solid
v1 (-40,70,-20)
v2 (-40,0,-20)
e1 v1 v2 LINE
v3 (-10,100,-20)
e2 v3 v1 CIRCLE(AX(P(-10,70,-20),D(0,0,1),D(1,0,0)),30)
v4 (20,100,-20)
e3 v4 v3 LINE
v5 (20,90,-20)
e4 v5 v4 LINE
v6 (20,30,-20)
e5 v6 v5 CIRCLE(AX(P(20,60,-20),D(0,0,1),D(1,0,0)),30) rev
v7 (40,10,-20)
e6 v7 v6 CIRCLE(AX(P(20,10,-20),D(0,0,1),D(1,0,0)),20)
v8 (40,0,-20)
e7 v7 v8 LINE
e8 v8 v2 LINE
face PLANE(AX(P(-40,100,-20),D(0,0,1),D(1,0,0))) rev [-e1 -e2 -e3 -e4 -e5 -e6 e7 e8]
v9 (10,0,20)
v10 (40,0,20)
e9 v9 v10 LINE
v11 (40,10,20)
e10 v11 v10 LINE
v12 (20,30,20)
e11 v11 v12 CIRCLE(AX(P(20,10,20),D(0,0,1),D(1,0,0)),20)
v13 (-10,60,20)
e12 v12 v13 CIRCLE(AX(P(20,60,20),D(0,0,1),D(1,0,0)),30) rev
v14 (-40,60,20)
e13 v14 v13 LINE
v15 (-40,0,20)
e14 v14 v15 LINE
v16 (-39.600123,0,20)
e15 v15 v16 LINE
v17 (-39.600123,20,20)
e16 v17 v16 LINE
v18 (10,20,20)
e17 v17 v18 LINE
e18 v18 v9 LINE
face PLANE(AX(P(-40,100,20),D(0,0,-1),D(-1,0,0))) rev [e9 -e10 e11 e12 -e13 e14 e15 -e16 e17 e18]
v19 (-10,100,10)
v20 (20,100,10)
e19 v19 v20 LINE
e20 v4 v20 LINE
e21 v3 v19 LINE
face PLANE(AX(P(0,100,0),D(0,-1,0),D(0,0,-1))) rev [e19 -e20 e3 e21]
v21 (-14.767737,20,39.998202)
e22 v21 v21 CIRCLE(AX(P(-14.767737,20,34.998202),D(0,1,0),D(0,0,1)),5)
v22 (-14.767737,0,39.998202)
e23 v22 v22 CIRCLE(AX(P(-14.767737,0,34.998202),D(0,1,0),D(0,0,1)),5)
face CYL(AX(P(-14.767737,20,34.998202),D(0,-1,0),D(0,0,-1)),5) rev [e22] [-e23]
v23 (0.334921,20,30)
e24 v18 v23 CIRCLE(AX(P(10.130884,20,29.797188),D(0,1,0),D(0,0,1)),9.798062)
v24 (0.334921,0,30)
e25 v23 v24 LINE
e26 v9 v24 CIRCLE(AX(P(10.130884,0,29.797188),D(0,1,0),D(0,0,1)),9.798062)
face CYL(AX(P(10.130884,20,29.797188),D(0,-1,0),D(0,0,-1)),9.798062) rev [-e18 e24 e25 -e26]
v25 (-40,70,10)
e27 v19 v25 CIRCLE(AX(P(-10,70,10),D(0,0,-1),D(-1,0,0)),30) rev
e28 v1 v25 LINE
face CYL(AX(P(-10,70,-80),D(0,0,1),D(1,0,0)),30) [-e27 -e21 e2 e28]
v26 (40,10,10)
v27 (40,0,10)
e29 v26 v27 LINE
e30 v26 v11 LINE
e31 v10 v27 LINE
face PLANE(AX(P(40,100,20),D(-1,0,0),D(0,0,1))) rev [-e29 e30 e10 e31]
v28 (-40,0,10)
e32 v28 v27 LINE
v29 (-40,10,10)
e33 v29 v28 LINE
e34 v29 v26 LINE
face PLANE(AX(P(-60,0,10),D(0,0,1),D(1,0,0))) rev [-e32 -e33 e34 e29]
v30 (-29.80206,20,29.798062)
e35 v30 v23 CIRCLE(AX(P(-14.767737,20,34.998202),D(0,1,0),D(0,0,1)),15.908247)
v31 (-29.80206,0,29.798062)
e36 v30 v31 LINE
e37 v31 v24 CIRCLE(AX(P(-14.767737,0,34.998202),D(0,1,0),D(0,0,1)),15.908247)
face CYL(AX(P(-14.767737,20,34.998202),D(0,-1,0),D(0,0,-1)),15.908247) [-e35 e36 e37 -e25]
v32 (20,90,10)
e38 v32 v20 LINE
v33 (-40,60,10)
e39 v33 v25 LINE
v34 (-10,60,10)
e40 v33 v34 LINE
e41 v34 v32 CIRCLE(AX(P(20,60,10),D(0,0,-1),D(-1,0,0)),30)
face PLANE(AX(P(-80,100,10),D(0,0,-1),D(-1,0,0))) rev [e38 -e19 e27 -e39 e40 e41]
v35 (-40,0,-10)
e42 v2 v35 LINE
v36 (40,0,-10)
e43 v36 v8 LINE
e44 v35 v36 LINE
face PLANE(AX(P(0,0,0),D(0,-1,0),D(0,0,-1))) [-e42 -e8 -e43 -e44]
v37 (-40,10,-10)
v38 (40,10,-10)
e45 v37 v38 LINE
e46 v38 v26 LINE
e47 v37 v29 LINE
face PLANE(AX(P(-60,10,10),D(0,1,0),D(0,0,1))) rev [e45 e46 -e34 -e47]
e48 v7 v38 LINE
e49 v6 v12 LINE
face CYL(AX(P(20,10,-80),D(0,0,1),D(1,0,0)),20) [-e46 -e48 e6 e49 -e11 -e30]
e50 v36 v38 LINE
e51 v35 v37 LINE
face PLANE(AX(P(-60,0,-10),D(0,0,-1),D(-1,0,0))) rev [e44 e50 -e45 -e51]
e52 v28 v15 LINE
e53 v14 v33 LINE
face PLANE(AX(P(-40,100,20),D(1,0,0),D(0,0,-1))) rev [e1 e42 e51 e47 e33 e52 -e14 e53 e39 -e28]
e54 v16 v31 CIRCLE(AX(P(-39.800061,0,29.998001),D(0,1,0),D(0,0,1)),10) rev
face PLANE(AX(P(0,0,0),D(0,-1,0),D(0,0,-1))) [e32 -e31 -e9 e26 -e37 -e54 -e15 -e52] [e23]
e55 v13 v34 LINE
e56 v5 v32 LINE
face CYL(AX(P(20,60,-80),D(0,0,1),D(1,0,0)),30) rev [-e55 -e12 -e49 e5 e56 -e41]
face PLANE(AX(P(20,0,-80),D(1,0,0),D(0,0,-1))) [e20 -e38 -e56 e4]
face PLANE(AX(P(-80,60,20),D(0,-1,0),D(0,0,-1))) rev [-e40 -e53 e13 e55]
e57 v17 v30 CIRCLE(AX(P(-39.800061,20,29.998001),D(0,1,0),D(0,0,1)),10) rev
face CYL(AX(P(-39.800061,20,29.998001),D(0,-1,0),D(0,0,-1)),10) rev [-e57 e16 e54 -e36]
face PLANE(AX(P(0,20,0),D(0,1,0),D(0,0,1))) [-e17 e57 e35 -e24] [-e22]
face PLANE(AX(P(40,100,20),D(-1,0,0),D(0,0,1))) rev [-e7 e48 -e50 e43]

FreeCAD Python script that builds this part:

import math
import FreeCAD as App
import Part
import Sketcher
Q = App.Units.Quantity

doc = App.newDocument("Part")
body = doc.addObject("PartDesign::Body", "Body")

sketch1 = doc.addObject("Sketcher::SketchObject", "Sketch")
body.addObject(sketch1)
sketch1.AttachmentSupport = (doc.XZ_Plane, [""])
sketch1.MapMode = "FlatFace"
sketch1.addGeometry([
    Part.LineSegment(App.Vector(-40, -20, 0), App.Vector(-40, 20, 0)),
    Part.LineSegment(App.Vector(-40, 20, 0), App.Vector(40, 20, 0)),
    Part.LineSegment(App.Vector(40, 20, 0), App.Vector(40, -20, 0)),
    Part.LineSegment(App.Vector(40, -20, 0), App.Vector(-40, -20, 0)),
], False)
sketch1.addConstraint([
    Sketcher.Constraint("Coincident", 0, 2, 1, 1),
    Sketcher.Constraint("Coincident", 1, 2, 2, 1),
    Sketcher.Constraint("Coincident", 2, 2, 3, 1),
    Sketcher.Constraint("Coincident", 3, 2, 0, 1),
    Sketcher.Constraint("Vertical", 0),
    Sketcher.Constraint("Horizontal", 1),
    Sketcher.Constraint("Vertical", 2),
    Sketcher.Constraint("Horizontal", 3),
    Sketcher.Constraint("Symmetric", 0, 2, 2, 2, -1, 1),
    Sketcher.Constraint("DistanceX", 1, 1, 1, 2, Q("80 mm")),
    Sketcher.Constraint("DistanceY", 0, 1, 0, 2, Q("40 mm")),
])
pad1 = doc.addObject("PartDesign::Pad", "Pad")
body.addObject(pad1)
pad1.Profile = sketch1
pad1.Length = 100
pad1.Reversed = True

sketch2 = doc.addObject("Sketcher::SketchObject", "Sketch001")
body.addObject(sketch2)
sketch2.AttachmentSupport = (doc.XY_Plane, [""])
sketch2.MapMode = "FlatFace"
sketch2.AttachmentOffset = App.Placement(App.Vector(0, 0, 20), App.Rotation())
sketch2.addGeometry([
    Part.ArcOfCircle(Part.Circle(App.Vector(20, 10, 0), App.Vector(0, 0, 1), 20), math.radians(0), math.radians(90)),
    Part.LineSegment(App.Vector(40, 10, 0), App.Vector(40, 100, 0)),
    Part.LineSegment(App.Vector(40, 100, 0), App.Vector(20, 100, 0)),
    Part.LineSegment(App.Vector(20, 100, 0), App.Vector(20, 90, 0)),
    Part.ArcOfCircle(Part.Circle(App.Vector(20, 60, 0), App.Vector(0, 0, 1), 30), math.radians(90), math.radians(270)),
    Part.LineSegment(App.Vector(-40, 100, 0), App.Vector(-40, 70, 0)),
    Part.ArcOfCircle(Part.Circle(App.Vector(-10, 70, 0), App.Vector(0, 0, 1), 30), math.radians(90), math.radians(180)),
    Part.LineSegment(App.Vector(-10, 100, 0), App.Vector(-40, 100, 0)),
], False)
sketch2.addConstraint([
    Sketcher.Constraint("Tangent", 0, 1, 1, 1),
    Sketcher.Constraint("Coincident", 1, 2, 2, 1),
    Sketcher.Constraint("Coincident", 2, 2, 3, 1),
    Sketcher.Constraint("Coincident", 3, 2, 4, 1),
    Sketcher.Constraint("Tangent", 4, 2, 0, 2),
    Sketcher.Constraint("Tangent", 5, 2, 6, 2),
    Sketcher.Constraint("Tangent", 6, 1, 7, 1),
    Sketcher.Constraint("Coincident", 7, 2, 5, 1),
    Sketcher.Constraint("Vertical", 1),
    Sketcher.Constraint("Horizontal", 2),
    Sketcher.Constraint("Vertical", 3),
    Sketcher.Constraint("Vertical", 5),
    Sketcher.Constraint("Horizontal", 7),
    Sketcher.Constraint("Equal", 4, 6),
    Sketcher.Constraint("Symmetric", 1, 2, 7, 2, -2),
    Sketcher.Constraint("Vertical", 0, 3, 4, 3),
    Sketcher.Constraint("Vertical", 4, 3, 2, 2),
    Sketcher.Constraint("Radius", 0, Q("20 mm")),
    Sketcher.Constraint("Radius", 4, Q("30 mm")),
    Sketcher.Constraint("DistanceY", 1, 1, 1, 2, Q("90 mm")),
    Sketcher.Constraint("DistanceX", -1, 1, 0, 3, Q("20 mm")),
    Sketcher.Constraint("DistanceY", -1, 1, 0, 3, Q("10 mm")),
])
pocket1 = doc.addObject("PartDesign::Pocket", "Pocket")
body.addObject(pocket1)
pocket1.Profile = sketch2
pocket1.Length = 100

sketch3 = doc.addObject("Sketcher::SketchObject", "Sketch002")
body.addObject(sketch3)
sketch3.AttachmentSupport = (doc.YZ_Plane, [""])
sketch3.MapMode = "FlatFace"
sketch3.AttachmentOffset = App.Placement(App.Vector(0, 0, 40), App.Rotation())
sketch3.addGeometry([
    Part.LineSegment(App.Vector(10, 10, 0), App.Vector(0, 10, 0)),
    Part.LineSegment(App.Vector(0, 10, 0), App.Vector(0, -10, 0)),
    Part.LineSegment(App.Vector(0, -10, 0), App.Vector(10, -10, 0)),
    Part.LineSegment(App.Vector(10, -10, 0), App.Vector(10, 10, 0)),
], False)
sketch3.addConstraint([
    Sketcher.Constraint("Coincident", 0, 2, 1, 1),
    Sketcher.Constraint("Coincident", 1, 2, 2, 1),
    Sketcher.Constraint("Coincident", 2, 2, 3, 1),
    Sketcher.Constraint("Coincident", 3, 2, 0, 1),
    Sketcher.Constraint("Horizontal", 0),
    Sketcher.Constraint("Vertical", 1),
    Sketcher.Constraint("Horizontal", 2),
    Sketcher.Constraint("Vertical", 3),
    Sketcher.Constraint("Symmetric", 0, 2, 1, 2, -1, 1),
    Sketcher.Constraint("DistanceX", 0, 2, 0, 1, Q("10 mm")),
    Sketcher.Constraint("DistanceY", 1, 2, 1, 1, Q("20 mm")),
])
pocket2 = doc.addObject("PartDesign::Pocket", "Pocket001")
body.addObject(pocket2)
pocket2.Profile = sketch3
pocket2.Length = 100

sketch4 = doc.addObject("Sketcher::SketchObject", "Sketch003")
body.addObject(sketch4)
sketch4.AttachmentSupport = (doc.YZ_Plane, [""])
sketch4.MapMode = "FlatFace"
sketch4.AttachmentOffset = App.Placement(App.Vector(0, 0, 20), App.Rotation())
sketch4.addGeometry([
    Part.LineSegment(App.Vector(100, 20, 0), App.Vector(60, 20, 0)),
    Part.LineSegment(App.Vector(60, 20, 0), App.Vector(60, 10, 0)),
    Part.LineSegment(App.Vector(60, 10, 0), App.Vector(100, 10, 0)),
    Part.LineSegment(App.Vector(100, 10, 0), App.Vector(100, 20, 0)),
], False)
sketch4.addConstraint([
    Sketcher.Constraint("Coincident", 0, 2, 1, 1),
    Sketcher.Constraint("Coincident", 1, 2, 2, 1),
    Sketcher.Constraint("Coincident", 2, 2, 3, 1),
    Sketcher.Constraint("Coincident", 3, 2, 0, 1),
    Sketcher.Constraint("Horizontal", 0),
    Sketcher.Constraint("Vertical", 1),
    Sketcher.Constraint("Horizontal", 2),
    Sketcher.Constraint("Vertical", 3),
    Sketcher.Constraint("DistanceX", 0, 2, 0, 1, Q("40 mm")),
    Sketcher.Constraint("DistanceY", 1, 2, 1, 1, Q("10 mm")),
    Sketcher.Constraint("DistanceX", -1, 1, 0, 2, Q("60 mm")),
    Sketcher.Constraint("DistanceY", -1, 1, 0, 2, Q("20 mm")),
])
pocket3 = doc.addObject("PartDesign::Pocket", "Pocket002")
body.addObject(pocket3)
pocket3.Profile = sketch4
pocket3.Length = 100

sketch5 = doc.addObject("Sketcher::SketchObject", "Sketch004")
body.addObject(sketch5)
sketch5.AttachmentSupport = (doc.XZ_Plane, [""])
sketch5.MapMode = "FlatFace"
sketch5.addGeometry([
    Part.LineSegment(App.Vector(10, 20, 0), App.Vector(-40, 20, 0)),
    Part.ArcOfCircle(Part.Circle(App.Vector(-40, 30, 0), App.Vector(0, 0, 1), 10), math.radians(-89), math.radians(-1)),
    Part.ArcOfCircle(Part.Circle(App.Vector(-15, 35, 0), App.Vector(0, 0, 1), 16), math.radians(-18), math.radians(199)),
    Part.ArcOfCircle(Part.Circle(App.Vector(10, 30, 0), App.Vector(0, 0, 1), 10), math.radians(179), math.radians(269)),
    Part.Circle(App.Vector(-15, 35, 0), App.Vector(0, 0, 1), 5),
], False)
sketch5.addConstraint([
    Sketcher.Constraint("Coincident", 0, 2, 1, 1),
    Sketcher.Constraint("Coincident", 1, 2, 2, 2),
    Sketcher.Constraint("Coincident", 2, 1, 3, 1),
    Sketcher.Constraint("Coincident", 3, 2, 0, 1),
    Sketcher.Constraint("Horizontal", 0),
    Sketcher.Constraint("Coincident", 4, 3, 2, 3),
    Sketcher.Constraint("Diameter", 4, Q("10 mm")),
    Sketcher.Constraint("Radius", 1, Q("10 mm")),
    Sketcher.Constraint("DistanceY", -1, 1, 0, 2, Q("20 mm")),
    Sketcher.Constraint("DistanceY", -1, 1, 2, 1, Q("30 mm")),
    Sketcher.Constraint("DistanceX", -1, 1, 3, 2, Q("10 mm")),
    Sketcher.Constraint("DistanceY", -1, 1, 1, 3, Q("29.998001 mm")),
    Sketcher.Constraint("Radius", 2, Q("15.908247 mm")),
    Sketcher.Constraint("Radius", 3, Q("9.798062 mm")),
    Sketcher.Constraint("DistanceX", 1, 3, 1, 2, Q("9.998001 mm")),
    Sketcher.Constraint("DistanceY", -1, 1, 2, 3, Q("34.998202 mm")),
    Sketcher.Constraint("DistanceX", 0, 2, 0, 1, Q("49.600123 mm")),
])
pad2 = doc.addObject("PartDesign::Pad", "Pad001")
body.addObject(pad2)
pad2.Profile = sketch5
pad2.Length = 20
pad2.Reversed = True

doc.recompute()
